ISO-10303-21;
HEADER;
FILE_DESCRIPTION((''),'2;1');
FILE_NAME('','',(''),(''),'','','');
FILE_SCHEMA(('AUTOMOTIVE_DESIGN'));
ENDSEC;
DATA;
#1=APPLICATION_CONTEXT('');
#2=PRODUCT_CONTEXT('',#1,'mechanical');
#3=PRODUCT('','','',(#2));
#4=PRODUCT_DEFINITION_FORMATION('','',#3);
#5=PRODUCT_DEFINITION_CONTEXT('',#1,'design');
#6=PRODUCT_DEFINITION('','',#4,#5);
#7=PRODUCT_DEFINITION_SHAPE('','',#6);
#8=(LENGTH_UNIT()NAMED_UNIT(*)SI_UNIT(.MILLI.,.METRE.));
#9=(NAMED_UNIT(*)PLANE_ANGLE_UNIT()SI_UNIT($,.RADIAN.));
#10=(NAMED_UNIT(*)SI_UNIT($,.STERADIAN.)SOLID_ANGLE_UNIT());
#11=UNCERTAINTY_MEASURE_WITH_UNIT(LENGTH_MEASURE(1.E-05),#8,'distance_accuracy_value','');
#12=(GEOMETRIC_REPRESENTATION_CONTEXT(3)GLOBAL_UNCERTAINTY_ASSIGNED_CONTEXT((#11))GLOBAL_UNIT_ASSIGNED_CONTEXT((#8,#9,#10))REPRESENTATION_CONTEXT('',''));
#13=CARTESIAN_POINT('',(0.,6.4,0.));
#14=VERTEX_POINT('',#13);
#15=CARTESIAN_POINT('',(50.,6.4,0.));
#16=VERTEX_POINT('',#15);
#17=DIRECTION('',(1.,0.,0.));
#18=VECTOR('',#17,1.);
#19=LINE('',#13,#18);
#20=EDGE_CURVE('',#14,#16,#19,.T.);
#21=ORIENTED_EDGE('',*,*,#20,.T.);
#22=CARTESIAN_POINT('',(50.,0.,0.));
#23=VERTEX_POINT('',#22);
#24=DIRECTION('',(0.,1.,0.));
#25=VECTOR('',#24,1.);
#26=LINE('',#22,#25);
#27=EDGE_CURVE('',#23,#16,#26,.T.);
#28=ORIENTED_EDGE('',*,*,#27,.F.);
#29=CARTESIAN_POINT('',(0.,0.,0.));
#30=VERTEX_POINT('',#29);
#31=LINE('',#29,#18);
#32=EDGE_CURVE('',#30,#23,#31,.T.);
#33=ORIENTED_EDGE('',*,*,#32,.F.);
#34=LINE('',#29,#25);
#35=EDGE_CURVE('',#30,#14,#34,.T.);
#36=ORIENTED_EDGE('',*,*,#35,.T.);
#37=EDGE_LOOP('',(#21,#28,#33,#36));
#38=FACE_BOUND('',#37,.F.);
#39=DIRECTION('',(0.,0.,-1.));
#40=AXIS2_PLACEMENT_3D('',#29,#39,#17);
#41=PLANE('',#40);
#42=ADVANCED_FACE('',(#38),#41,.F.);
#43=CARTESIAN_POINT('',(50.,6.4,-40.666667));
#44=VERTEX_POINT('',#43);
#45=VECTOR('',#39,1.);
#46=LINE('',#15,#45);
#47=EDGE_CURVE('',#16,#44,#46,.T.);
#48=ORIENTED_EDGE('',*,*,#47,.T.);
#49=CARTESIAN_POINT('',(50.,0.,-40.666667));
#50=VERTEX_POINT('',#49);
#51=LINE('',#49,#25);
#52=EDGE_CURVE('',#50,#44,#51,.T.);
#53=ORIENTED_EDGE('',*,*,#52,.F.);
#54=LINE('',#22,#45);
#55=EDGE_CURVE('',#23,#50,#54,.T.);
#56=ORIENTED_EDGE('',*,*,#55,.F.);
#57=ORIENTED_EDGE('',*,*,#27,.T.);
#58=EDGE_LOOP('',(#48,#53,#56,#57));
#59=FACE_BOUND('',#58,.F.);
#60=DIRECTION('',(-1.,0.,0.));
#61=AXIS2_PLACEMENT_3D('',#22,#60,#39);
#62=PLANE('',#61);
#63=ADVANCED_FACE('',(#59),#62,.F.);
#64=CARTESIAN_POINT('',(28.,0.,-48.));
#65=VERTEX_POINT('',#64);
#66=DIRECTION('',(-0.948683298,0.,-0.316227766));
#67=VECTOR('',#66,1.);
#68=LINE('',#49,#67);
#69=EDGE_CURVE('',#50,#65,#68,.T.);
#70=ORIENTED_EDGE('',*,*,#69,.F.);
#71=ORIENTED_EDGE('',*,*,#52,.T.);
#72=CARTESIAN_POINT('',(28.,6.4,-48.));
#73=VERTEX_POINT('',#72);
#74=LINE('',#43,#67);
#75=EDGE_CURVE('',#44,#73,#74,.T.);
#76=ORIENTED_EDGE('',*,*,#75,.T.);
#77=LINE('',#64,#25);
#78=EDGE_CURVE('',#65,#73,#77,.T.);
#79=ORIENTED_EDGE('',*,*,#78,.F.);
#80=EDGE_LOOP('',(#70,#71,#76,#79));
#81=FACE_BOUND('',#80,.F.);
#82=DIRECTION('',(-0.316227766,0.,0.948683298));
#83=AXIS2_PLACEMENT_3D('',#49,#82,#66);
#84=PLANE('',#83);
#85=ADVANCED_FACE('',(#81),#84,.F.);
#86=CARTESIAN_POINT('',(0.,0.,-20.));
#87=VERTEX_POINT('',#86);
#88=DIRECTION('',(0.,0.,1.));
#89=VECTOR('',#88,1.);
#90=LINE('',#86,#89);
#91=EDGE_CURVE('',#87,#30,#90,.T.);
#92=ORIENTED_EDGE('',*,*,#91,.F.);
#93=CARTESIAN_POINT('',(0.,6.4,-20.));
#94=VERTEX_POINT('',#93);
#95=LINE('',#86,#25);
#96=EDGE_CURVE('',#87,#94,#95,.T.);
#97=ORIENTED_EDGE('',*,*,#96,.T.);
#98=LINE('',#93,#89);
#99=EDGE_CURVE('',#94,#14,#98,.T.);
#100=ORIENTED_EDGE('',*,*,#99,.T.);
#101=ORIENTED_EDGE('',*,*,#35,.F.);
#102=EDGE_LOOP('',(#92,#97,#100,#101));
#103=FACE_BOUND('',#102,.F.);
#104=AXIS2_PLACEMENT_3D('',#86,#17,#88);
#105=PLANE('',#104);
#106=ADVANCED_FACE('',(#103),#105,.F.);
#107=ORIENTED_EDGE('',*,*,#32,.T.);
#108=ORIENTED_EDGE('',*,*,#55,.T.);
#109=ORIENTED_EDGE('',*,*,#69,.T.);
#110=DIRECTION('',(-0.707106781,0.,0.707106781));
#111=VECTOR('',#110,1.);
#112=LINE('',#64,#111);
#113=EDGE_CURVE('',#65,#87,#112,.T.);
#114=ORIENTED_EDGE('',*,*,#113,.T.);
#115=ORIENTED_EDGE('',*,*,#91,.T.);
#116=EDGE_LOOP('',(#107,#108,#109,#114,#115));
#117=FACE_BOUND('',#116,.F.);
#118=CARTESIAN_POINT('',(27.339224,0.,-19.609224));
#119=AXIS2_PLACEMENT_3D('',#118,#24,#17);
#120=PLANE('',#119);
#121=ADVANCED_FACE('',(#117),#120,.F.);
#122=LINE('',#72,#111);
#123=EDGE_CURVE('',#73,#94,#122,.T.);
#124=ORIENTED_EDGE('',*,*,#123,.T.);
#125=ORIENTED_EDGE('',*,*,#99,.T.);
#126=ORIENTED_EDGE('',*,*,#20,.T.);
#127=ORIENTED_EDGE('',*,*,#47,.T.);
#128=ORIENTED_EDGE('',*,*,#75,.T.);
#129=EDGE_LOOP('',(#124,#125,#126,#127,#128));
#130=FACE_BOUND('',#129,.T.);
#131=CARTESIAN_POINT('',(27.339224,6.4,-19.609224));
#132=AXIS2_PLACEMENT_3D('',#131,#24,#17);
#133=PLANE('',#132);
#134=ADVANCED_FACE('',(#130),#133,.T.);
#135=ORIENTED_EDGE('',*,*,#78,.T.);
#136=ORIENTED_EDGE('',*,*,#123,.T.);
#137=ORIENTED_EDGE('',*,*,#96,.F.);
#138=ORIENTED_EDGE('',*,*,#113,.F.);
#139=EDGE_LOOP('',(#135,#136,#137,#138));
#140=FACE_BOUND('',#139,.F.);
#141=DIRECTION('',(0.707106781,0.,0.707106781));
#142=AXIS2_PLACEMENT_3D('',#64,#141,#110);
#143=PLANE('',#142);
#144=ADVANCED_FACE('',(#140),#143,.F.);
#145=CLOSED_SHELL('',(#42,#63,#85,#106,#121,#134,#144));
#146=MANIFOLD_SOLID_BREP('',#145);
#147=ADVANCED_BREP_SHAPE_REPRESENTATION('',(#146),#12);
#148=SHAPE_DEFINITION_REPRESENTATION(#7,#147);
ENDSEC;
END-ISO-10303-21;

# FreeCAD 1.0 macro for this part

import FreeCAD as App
import Part
import Sketcher
from FreeCAD import Vector
Q = App.Units.Quantity


def add_polygon(sketch, points):
    """Adds a closed chain of lines whose ends are joined by coincident constraints."""
    first, n = sketch.GeometryCount, len(points)
    for a, b in zip(points, points[1:] + points[:1]):
        sketch.addGeometry(Part.LineSegment(App.Vector(*a, 0), App.Vector(*b, 0)), False)
    for i in range(n):
        sketch.addConstraint(Sketcher.Constraint("Coincident", first + i, 2, first + (i + 1) % n, 1))

doc = App.newDocument("Part")
params = doc.addObject("Spreadsheet::Sheet", "Params")
for row, (alias, value) in enumerate([
    ("sketch1_width", "50 mm"),
    ("sketch1_height", "20 mm"),
    ("pad1_length", "6.4 mm"),
], start=1):
    params.set(f"A{row}", alias)
    params.set(f"B{row}", "=" + value)
    params.setAlias(f"B{row}", alias)

body = doc.addObject("PartDesign::Body", "Body")

# Sketch on XZ plane
sketch1 = body.newObject("Sketcher::SketchObject", "Sketch")
sketch1.AttachmentSupport = (doc.getObject("XZ_Plane"), [""])
sketch1.MapMode = "FlatFace"
add_polygon(sketch1, [(28, -48), (0, -20), (0, 0), (50, 0), (50, -41)])  # lines 0-4
sketch1.addConstraint(Sketcher.Constraint("Vertical", 1))
sketch1.addConstraint(Sketcher.Constraint("Horizontal", 2))
sketch1.addConstraint(Sketcher.Constraint("Vertical", 3))
sketch1.addConstraint(Sketcher.Constraint("Coincident", 1, 2, -1, 1))
sketch1.addConstraint(Sketcher.Constraint("DistanceX", 2, 1, 2, 2, 50.0))
sketch1.addConstraint(Sketcher.Constraint("DistanceY", 1, 1, 1, 2, 20.0))
sketch1.addConstraint(Sketcher.Constraint("Angle", 0, Q("135 deg")))
sketch1.addConstraint(Sketcher.Constraint("DistanceX", -1, 1, 4, 2, 28.0))
sketch1.addConstraint(Sketcher.Constraint("DistanceY", 3, 2, 3, 1, 40.666667))
sketch1.setExpression("Constraints[9]", "Params.sketch1_width")
sketch1.setExpression("Constraints[10]", "Params.sketch1_height")
pad1 = body.newObject("PartDesign::Pad", "Pad")
pad1.Profile = sketch1
pad1.setExpression("Length", "Params.pad1_length")
pad1.Reversed = True

doc.recompute()
